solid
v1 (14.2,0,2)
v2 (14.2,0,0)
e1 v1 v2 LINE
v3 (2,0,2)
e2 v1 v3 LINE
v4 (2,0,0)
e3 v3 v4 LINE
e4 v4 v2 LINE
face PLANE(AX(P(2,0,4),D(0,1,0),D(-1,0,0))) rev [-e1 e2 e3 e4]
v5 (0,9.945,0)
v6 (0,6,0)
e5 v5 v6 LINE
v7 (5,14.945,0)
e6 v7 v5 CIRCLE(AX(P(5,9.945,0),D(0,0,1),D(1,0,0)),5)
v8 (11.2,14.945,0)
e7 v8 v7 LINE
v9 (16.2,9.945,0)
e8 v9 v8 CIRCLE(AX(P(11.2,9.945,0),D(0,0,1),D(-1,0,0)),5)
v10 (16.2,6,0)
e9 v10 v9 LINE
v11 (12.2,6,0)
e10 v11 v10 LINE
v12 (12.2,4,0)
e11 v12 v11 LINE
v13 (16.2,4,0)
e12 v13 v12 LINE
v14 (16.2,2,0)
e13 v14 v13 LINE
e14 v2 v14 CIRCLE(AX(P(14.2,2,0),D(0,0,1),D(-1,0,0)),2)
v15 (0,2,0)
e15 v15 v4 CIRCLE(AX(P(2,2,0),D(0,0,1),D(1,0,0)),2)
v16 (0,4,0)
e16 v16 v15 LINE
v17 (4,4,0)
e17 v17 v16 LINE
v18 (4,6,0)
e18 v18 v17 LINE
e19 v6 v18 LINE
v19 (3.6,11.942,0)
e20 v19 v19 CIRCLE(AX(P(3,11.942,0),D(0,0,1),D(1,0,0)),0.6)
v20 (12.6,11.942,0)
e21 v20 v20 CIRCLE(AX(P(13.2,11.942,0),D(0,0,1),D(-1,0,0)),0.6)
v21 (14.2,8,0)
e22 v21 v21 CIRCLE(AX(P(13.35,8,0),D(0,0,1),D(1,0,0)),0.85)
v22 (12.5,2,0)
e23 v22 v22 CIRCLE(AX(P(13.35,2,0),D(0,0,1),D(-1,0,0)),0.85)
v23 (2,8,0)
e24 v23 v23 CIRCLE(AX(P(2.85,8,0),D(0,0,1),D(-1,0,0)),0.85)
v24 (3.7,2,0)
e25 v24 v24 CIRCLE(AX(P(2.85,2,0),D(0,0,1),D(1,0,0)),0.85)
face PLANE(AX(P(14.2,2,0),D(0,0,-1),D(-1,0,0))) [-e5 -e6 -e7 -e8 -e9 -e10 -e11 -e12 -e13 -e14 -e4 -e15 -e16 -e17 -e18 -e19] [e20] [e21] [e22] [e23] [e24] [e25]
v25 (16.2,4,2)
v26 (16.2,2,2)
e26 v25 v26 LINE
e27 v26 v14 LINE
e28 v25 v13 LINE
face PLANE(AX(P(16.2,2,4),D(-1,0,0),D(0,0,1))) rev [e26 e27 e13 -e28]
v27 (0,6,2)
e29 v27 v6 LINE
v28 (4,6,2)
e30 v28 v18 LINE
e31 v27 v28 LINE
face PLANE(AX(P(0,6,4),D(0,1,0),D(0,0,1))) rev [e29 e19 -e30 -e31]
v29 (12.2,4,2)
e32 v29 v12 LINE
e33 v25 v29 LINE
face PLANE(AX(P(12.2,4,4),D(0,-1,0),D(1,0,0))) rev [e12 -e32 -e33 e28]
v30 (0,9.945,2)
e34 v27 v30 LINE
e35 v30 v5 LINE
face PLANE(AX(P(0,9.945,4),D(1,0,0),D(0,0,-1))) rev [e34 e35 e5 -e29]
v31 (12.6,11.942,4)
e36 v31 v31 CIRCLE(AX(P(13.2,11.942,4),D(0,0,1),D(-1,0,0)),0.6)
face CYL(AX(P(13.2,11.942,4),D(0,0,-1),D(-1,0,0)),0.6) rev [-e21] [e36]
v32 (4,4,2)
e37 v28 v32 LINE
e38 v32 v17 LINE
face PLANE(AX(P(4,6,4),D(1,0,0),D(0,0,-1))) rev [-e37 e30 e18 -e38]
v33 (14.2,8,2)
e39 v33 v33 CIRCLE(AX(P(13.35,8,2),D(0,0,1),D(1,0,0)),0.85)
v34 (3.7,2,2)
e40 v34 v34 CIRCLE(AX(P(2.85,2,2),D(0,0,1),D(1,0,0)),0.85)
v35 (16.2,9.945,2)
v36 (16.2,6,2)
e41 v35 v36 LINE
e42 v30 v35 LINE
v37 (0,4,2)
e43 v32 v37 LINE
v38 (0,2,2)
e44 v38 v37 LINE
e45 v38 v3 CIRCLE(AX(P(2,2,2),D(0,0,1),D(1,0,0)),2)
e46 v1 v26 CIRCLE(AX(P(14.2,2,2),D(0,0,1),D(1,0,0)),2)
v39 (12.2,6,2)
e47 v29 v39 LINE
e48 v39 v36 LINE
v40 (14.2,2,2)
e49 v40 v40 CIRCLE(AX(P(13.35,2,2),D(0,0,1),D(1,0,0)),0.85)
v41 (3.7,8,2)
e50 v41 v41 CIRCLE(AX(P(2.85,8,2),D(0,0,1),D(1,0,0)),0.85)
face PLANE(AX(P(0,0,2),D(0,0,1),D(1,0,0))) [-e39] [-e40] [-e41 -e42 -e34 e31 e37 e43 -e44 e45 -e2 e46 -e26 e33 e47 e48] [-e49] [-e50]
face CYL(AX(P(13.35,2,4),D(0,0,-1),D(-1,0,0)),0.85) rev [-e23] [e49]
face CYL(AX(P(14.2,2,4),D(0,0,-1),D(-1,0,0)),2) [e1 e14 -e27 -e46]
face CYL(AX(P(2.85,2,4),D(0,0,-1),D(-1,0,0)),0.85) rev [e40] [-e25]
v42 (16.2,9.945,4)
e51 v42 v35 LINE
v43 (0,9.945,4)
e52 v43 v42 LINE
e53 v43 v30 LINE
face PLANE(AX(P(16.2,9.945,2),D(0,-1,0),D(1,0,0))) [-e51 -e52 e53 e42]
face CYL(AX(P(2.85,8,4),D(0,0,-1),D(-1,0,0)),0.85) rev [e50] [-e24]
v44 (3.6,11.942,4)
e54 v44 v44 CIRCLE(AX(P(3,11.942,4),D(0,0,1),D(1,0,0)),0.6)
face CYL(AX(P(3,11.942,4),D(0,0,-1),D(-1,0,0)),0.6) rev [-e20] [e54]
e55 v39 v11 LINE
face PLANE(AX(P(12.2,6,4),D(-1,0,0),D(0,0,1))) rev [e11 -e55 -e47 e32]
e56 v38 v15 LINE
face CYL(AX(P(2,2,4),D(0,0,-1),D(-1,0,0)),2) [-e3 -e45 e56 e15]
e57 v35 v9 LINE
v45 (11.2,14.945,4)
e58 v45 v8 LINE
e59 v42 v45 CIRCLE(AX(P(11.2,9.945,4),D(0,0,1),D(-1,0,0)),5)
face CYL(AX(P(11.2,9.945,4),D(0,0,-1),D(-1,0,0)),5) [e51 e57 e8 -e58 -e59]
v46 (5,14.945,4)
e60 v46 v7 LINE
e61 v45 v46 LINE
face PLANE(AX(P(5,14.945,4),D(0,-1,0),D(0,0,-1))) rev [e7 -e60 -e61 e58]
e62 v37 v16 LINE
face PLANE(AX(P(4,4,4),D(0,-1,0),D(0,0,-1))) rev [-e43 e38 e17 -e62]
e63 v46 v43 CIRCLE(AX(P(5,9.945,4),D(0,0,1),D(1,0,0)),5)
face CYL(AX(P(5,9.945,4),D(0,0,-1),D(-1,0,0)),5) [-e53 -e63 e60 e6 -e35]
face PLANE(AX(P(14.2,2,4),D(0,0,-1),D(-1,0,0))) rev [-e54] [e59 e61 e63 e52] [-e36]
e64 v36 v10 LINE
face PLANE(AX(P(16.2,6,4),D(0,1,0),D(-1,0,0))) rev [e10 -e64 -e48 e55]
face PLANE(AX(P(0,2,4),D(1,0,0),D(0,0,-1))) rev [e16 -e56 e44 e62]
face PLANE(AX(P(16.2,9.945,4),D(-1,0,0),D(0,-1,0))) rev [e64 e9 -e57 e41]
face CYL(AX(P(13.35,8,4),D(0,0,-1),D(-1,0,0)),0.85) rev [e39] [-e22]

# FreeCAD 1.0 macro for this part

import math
import FreeCAD as App
import Part
import Sketcher
from FreeCAD import Vector


def add_polygon(sketch, points):
    """Adds a closed chain of lines whose ends are joined by coincident constraints."""
    first, n = sketch.GeometryCount, len(points)
    for a, b in zip(points, points[1:] + points[:1]):
        sketch.addGeometry(Part.LineSegment(App.Vector(*a, 0), App.Vector(*b, 0)), False)
    for i in range(n):
        sketch.addConstraint(Sketcher.Constraint("Coincident", first + i, 2, first + (i + 1) % n, 1))

doc = App.newDocument("Part")
body = doc.addObject("PartDesign::Body", "Body")

sketch1 = body.newObject("Sketcher::SketchObject", "Sketch")
sketch1.AttachmentSupport = (doc.getObject("XY_Plane"), [""])
sketch1.MapMode = "FlatFace"
sketch1.addGeometry([
    Part.LineSegment(Vector(0, 9.9, 0), Vector(0, 6, 0)),
    Part.LineSegment(Vector(0, 6, 0), Vector(4, 6, 0)),
    Part.LineSegment(Vector(4, 6, 0), Vector(4, 4, 0)),
    Part.LineSegment(Vector(4, 4, 0), Vector(0, 4, 0)),
    Part.LineSegment(Vector(0, 4, 0), Vector(0, 2, 0)),
    Part.ArcOfCircle(Part.Circle(Vector(2, 2, 0), Vector(0, 0, 1), 2), math.radians(-180), math.radians(-90)),
    Part.LineSegment(Vector(2, 0, 0), Vector(14.2, 0, 0)),
    Part.ArcOfCircle(Part.Circle(Vector(14.2, 2, 0), Vector(0, 0, 1), 2), math.radians(-90), math.radians(0)),
    Part.LineSegment(Vector(16.2, 2, 0), Vector(16.2, 4, 0)),
    Part.LineSegment(Vector(16.2, 4, 0), Vector(12.2, 4, 0)),
    Part.LineSegment(Vector(12.2, 4, 0), Vector(12.2, 6, 0)),
    Part.LineSegment(Vector(12.2, 6, 0), Vector(16.2, 6, 0)),
    Part.LineSegment(Vector(16.2, 6, 0), Vector(16.2, 9.9, 0)),
    Part.ArcOfCircle(Part.Circle(Vector(11.2, 9.9, 0), Vector(0, 0, 1), 5), math.radians(0), math.radians(90)),
    Part.LineSegment(Vector(11.2, 14.9, 0), Vector(5, 14.9, 0)),
    Part.ArcOfCircle(Part.Circle(Vector(5, 9.9, 0), Vector(0, 0, 1), 5), math.radians(90), math.radians(180)),
    Part.Circle(Vector(2.9, 2, 0), Vector(0, 0, 1), 0.8),
    Part.Circle(Vector(13.3, 2, 0), Vector(0, 0, 1), 0.8),
    Part.Circle(Vector(2.9, 8, 0), Vector(0, 0, 1), 0.8),
    Part.Circle(Vector(3, 11.9, 0), Vector(0, 0, 1), 0.6),
    Part.Circle(Vector(13.3, 8, 0), Vector(0, 0, 1), 0.8),
    Part.Circle(Vector(13.2, 11.9, 0), Vector(0, 0, 1), 0.6),
], False)
sketch1.addConstraint([
    Sketcher.Constraint("Coincident", 0, 2, 1, 1),
    Sketcher.Constraint("Coincident", 1, 2, 2, 1),
    Sketcher.Constraint("Coincident", 2, 2, 3, 1),
    Sketcher.Constraint("Coincident", 3, 2, 4, 1),
    Sketcher.Constraint("Tangent", 4, 2, 5, 1),
    Sketcher.Constraint("Tangent", 5, 2, 6, 1),
    Sketcher.Constraint("Tangent", 6, 2, 7, 1),
    Sketcher.Constraint("Tangent", 7, 2, 8, 1),
    Sketcher.Constraint("Coincident", 8, 2, 9, 1),
    Sketcher.Constraint("Coincident", 9, 2, 10, 1),
    Sketcher.Constraint("Coincident", 10, 2, 11, 1),
    Sketcher.Constraint("Coincident", 11, 2, 12, 1),
    Sketcher.Constraint("Tangent", 12, 2, 13, 1),
    Sketcher.Constraint("Tangent", 13, 2, 14, 1),
    Sketcher.Constraint("Tangent", 14, 2, 15, 1),
    Sketcher.Constraint("Tangent", 15, 2, 0, 1),
    Sketcher.Constraint("Vertical", 0),
    Sketcher.Constraint("Horizontal", 1),
    Sketcher.Constraint("Vertical", 2),
    Sketcher.Constraint("Horizontal", 3),
    Sketcher.Constraint("Vertical", 4),
    Sketcher.Constraint("Horizontal", 6),
    Sketcher.Constraint("Vertical", 8),
    Sketcher.Constraint("Horizontal", 9),
    Sketcher.Constraint("Vertical", 10),
    Sketcher.Constraint("Horizontal", 11),
    Sketcher.Constraint("Vertical", 12),
    Sketcher.Constraint("Horizontal", 14),
    Sketcher.Constraint("Equal", 5, 7),
    Sketcher.Constraint("Equal", 13, 15),
    Sketcher.Constraint("Equal", 16, 17),
    Sketcher.Constraint("Equal", 17, 18),
    Sketcher.Constraint("Equal", 18, 20),
    Sketcher.Constraint("Equal", 19, 21),
    Sketcher.Constraint("PointOnObject", 0, 2, -2),
    Sketcher.Constraint("PointOnObject", 3, 2, -2),
    Sketcher.Constraint("PointOnObject", 5, 2, -1),
    Sketcher.Constraint("Horizontal", 7, 3, 16, 3),
    Sketcher.Constraint("Horizontal", 16, 3, 17, 3),
    Sketcher.Constraint("Horizontal", 18, 3, 20, 3),
    Sketcher.Constraint("Horizontal", 19, 3, 21, 3),
    Sketcher.Constraint("Horizontal", 3, 2, 8, 2),
    Sketcher.Constraint("Horizontal", 1, 2, 10, 2),
    Sketcher.Constraint("Vertical", 16, 3, 18, 3),
    Sketcher.Constraint("Vertical", 17, 3, 20, 3),
    Sketcher.Constraint("Vertical", 8, 2, 11, 2),
    Sketcher.Constraint("Equal", 3, 9),
    Sketcher.Constraint("Equal", 2, 4),
    Sketcher.Constraint("Radius", 5, 2.0),
    Sketcher.Constraint("Radius", 13, 5.0),
    Sketcher.Constraint("Diameter", 16, 1.7),
    Sketcher.Constraint("Diameter", 19, 1.2),
    Sketcher.Constraint("DistanceX", 1, 1, 1, 2, 4.0),
    Sketcher.Constraint("DistanceY", 2, 2, 2, 1, 2.0),
    Sketcher.Constraint("DistanceX", 6, 1, 6, 2, 12.2),
    Sketcher.Constraint("DistanceY", -1, 1, 18, 3, 8.0),
    Sketcher.Constraint("DistanceX", -1, 1, 19, 3, 3.0),
    Sketcher.Constraint("DistanceX", 13, 3, 21, 3, 2.0),
    Sketcher.Constraint("DistanceX", 16, 3, 17, 3, 10.5),
    Sketcher.Constraint("DistanceY", 0, 2, 0, 1, 3.945),
    Sketcher.Constraint("DistanceX", -1, 1, 16, 3, 2.85),
    Sketcher.Constraint("DistanceY", -1, 1, 19, 3, 11.942),
])
pad1 = body.newObject("PartDesign::Pad", "Pad")
pad1.Profile = sketch1
pad1.Length = 4

sketch2 = body.newObject("Sketcher::SketchObject", "Sketch001")
sketch2.AttachmentSupport = (doc.getObject("XY_Plane"), [""])
sketch2.MapMode = "FlatFace"
sketch2.AttachmentOffset = App.Placement(Vector(0, 0, 4), App.Rotation())
add_polygon(sketch2, [(16, 10), (16, 0), (0, 0), (0, 10)])
sketch2.addConstraint([
    Sketcher.Constraint("Vertical", 0),
    Sketcher.Constraint("Horizontal", 1),
    Sketcher.Constraint("Vertical", 2),
    Sketcher.Constraint("Horizontal", 3),
    Sketcher.Constraint("Coincident", 1, 2, -1, 1),
    Sketcher.Constraint("DistanceX", 1, 2, 1, 1, 16.2),
    Sketcher.Constraint("DistanceY", 0, 2, 0, 1, 9.945),
])
pocket1 = body.newObject("PartDesign::Pocket", "Pocket")
pocket1.Profile = sketch2
pocket1.Length = 2

doc.recompute()
